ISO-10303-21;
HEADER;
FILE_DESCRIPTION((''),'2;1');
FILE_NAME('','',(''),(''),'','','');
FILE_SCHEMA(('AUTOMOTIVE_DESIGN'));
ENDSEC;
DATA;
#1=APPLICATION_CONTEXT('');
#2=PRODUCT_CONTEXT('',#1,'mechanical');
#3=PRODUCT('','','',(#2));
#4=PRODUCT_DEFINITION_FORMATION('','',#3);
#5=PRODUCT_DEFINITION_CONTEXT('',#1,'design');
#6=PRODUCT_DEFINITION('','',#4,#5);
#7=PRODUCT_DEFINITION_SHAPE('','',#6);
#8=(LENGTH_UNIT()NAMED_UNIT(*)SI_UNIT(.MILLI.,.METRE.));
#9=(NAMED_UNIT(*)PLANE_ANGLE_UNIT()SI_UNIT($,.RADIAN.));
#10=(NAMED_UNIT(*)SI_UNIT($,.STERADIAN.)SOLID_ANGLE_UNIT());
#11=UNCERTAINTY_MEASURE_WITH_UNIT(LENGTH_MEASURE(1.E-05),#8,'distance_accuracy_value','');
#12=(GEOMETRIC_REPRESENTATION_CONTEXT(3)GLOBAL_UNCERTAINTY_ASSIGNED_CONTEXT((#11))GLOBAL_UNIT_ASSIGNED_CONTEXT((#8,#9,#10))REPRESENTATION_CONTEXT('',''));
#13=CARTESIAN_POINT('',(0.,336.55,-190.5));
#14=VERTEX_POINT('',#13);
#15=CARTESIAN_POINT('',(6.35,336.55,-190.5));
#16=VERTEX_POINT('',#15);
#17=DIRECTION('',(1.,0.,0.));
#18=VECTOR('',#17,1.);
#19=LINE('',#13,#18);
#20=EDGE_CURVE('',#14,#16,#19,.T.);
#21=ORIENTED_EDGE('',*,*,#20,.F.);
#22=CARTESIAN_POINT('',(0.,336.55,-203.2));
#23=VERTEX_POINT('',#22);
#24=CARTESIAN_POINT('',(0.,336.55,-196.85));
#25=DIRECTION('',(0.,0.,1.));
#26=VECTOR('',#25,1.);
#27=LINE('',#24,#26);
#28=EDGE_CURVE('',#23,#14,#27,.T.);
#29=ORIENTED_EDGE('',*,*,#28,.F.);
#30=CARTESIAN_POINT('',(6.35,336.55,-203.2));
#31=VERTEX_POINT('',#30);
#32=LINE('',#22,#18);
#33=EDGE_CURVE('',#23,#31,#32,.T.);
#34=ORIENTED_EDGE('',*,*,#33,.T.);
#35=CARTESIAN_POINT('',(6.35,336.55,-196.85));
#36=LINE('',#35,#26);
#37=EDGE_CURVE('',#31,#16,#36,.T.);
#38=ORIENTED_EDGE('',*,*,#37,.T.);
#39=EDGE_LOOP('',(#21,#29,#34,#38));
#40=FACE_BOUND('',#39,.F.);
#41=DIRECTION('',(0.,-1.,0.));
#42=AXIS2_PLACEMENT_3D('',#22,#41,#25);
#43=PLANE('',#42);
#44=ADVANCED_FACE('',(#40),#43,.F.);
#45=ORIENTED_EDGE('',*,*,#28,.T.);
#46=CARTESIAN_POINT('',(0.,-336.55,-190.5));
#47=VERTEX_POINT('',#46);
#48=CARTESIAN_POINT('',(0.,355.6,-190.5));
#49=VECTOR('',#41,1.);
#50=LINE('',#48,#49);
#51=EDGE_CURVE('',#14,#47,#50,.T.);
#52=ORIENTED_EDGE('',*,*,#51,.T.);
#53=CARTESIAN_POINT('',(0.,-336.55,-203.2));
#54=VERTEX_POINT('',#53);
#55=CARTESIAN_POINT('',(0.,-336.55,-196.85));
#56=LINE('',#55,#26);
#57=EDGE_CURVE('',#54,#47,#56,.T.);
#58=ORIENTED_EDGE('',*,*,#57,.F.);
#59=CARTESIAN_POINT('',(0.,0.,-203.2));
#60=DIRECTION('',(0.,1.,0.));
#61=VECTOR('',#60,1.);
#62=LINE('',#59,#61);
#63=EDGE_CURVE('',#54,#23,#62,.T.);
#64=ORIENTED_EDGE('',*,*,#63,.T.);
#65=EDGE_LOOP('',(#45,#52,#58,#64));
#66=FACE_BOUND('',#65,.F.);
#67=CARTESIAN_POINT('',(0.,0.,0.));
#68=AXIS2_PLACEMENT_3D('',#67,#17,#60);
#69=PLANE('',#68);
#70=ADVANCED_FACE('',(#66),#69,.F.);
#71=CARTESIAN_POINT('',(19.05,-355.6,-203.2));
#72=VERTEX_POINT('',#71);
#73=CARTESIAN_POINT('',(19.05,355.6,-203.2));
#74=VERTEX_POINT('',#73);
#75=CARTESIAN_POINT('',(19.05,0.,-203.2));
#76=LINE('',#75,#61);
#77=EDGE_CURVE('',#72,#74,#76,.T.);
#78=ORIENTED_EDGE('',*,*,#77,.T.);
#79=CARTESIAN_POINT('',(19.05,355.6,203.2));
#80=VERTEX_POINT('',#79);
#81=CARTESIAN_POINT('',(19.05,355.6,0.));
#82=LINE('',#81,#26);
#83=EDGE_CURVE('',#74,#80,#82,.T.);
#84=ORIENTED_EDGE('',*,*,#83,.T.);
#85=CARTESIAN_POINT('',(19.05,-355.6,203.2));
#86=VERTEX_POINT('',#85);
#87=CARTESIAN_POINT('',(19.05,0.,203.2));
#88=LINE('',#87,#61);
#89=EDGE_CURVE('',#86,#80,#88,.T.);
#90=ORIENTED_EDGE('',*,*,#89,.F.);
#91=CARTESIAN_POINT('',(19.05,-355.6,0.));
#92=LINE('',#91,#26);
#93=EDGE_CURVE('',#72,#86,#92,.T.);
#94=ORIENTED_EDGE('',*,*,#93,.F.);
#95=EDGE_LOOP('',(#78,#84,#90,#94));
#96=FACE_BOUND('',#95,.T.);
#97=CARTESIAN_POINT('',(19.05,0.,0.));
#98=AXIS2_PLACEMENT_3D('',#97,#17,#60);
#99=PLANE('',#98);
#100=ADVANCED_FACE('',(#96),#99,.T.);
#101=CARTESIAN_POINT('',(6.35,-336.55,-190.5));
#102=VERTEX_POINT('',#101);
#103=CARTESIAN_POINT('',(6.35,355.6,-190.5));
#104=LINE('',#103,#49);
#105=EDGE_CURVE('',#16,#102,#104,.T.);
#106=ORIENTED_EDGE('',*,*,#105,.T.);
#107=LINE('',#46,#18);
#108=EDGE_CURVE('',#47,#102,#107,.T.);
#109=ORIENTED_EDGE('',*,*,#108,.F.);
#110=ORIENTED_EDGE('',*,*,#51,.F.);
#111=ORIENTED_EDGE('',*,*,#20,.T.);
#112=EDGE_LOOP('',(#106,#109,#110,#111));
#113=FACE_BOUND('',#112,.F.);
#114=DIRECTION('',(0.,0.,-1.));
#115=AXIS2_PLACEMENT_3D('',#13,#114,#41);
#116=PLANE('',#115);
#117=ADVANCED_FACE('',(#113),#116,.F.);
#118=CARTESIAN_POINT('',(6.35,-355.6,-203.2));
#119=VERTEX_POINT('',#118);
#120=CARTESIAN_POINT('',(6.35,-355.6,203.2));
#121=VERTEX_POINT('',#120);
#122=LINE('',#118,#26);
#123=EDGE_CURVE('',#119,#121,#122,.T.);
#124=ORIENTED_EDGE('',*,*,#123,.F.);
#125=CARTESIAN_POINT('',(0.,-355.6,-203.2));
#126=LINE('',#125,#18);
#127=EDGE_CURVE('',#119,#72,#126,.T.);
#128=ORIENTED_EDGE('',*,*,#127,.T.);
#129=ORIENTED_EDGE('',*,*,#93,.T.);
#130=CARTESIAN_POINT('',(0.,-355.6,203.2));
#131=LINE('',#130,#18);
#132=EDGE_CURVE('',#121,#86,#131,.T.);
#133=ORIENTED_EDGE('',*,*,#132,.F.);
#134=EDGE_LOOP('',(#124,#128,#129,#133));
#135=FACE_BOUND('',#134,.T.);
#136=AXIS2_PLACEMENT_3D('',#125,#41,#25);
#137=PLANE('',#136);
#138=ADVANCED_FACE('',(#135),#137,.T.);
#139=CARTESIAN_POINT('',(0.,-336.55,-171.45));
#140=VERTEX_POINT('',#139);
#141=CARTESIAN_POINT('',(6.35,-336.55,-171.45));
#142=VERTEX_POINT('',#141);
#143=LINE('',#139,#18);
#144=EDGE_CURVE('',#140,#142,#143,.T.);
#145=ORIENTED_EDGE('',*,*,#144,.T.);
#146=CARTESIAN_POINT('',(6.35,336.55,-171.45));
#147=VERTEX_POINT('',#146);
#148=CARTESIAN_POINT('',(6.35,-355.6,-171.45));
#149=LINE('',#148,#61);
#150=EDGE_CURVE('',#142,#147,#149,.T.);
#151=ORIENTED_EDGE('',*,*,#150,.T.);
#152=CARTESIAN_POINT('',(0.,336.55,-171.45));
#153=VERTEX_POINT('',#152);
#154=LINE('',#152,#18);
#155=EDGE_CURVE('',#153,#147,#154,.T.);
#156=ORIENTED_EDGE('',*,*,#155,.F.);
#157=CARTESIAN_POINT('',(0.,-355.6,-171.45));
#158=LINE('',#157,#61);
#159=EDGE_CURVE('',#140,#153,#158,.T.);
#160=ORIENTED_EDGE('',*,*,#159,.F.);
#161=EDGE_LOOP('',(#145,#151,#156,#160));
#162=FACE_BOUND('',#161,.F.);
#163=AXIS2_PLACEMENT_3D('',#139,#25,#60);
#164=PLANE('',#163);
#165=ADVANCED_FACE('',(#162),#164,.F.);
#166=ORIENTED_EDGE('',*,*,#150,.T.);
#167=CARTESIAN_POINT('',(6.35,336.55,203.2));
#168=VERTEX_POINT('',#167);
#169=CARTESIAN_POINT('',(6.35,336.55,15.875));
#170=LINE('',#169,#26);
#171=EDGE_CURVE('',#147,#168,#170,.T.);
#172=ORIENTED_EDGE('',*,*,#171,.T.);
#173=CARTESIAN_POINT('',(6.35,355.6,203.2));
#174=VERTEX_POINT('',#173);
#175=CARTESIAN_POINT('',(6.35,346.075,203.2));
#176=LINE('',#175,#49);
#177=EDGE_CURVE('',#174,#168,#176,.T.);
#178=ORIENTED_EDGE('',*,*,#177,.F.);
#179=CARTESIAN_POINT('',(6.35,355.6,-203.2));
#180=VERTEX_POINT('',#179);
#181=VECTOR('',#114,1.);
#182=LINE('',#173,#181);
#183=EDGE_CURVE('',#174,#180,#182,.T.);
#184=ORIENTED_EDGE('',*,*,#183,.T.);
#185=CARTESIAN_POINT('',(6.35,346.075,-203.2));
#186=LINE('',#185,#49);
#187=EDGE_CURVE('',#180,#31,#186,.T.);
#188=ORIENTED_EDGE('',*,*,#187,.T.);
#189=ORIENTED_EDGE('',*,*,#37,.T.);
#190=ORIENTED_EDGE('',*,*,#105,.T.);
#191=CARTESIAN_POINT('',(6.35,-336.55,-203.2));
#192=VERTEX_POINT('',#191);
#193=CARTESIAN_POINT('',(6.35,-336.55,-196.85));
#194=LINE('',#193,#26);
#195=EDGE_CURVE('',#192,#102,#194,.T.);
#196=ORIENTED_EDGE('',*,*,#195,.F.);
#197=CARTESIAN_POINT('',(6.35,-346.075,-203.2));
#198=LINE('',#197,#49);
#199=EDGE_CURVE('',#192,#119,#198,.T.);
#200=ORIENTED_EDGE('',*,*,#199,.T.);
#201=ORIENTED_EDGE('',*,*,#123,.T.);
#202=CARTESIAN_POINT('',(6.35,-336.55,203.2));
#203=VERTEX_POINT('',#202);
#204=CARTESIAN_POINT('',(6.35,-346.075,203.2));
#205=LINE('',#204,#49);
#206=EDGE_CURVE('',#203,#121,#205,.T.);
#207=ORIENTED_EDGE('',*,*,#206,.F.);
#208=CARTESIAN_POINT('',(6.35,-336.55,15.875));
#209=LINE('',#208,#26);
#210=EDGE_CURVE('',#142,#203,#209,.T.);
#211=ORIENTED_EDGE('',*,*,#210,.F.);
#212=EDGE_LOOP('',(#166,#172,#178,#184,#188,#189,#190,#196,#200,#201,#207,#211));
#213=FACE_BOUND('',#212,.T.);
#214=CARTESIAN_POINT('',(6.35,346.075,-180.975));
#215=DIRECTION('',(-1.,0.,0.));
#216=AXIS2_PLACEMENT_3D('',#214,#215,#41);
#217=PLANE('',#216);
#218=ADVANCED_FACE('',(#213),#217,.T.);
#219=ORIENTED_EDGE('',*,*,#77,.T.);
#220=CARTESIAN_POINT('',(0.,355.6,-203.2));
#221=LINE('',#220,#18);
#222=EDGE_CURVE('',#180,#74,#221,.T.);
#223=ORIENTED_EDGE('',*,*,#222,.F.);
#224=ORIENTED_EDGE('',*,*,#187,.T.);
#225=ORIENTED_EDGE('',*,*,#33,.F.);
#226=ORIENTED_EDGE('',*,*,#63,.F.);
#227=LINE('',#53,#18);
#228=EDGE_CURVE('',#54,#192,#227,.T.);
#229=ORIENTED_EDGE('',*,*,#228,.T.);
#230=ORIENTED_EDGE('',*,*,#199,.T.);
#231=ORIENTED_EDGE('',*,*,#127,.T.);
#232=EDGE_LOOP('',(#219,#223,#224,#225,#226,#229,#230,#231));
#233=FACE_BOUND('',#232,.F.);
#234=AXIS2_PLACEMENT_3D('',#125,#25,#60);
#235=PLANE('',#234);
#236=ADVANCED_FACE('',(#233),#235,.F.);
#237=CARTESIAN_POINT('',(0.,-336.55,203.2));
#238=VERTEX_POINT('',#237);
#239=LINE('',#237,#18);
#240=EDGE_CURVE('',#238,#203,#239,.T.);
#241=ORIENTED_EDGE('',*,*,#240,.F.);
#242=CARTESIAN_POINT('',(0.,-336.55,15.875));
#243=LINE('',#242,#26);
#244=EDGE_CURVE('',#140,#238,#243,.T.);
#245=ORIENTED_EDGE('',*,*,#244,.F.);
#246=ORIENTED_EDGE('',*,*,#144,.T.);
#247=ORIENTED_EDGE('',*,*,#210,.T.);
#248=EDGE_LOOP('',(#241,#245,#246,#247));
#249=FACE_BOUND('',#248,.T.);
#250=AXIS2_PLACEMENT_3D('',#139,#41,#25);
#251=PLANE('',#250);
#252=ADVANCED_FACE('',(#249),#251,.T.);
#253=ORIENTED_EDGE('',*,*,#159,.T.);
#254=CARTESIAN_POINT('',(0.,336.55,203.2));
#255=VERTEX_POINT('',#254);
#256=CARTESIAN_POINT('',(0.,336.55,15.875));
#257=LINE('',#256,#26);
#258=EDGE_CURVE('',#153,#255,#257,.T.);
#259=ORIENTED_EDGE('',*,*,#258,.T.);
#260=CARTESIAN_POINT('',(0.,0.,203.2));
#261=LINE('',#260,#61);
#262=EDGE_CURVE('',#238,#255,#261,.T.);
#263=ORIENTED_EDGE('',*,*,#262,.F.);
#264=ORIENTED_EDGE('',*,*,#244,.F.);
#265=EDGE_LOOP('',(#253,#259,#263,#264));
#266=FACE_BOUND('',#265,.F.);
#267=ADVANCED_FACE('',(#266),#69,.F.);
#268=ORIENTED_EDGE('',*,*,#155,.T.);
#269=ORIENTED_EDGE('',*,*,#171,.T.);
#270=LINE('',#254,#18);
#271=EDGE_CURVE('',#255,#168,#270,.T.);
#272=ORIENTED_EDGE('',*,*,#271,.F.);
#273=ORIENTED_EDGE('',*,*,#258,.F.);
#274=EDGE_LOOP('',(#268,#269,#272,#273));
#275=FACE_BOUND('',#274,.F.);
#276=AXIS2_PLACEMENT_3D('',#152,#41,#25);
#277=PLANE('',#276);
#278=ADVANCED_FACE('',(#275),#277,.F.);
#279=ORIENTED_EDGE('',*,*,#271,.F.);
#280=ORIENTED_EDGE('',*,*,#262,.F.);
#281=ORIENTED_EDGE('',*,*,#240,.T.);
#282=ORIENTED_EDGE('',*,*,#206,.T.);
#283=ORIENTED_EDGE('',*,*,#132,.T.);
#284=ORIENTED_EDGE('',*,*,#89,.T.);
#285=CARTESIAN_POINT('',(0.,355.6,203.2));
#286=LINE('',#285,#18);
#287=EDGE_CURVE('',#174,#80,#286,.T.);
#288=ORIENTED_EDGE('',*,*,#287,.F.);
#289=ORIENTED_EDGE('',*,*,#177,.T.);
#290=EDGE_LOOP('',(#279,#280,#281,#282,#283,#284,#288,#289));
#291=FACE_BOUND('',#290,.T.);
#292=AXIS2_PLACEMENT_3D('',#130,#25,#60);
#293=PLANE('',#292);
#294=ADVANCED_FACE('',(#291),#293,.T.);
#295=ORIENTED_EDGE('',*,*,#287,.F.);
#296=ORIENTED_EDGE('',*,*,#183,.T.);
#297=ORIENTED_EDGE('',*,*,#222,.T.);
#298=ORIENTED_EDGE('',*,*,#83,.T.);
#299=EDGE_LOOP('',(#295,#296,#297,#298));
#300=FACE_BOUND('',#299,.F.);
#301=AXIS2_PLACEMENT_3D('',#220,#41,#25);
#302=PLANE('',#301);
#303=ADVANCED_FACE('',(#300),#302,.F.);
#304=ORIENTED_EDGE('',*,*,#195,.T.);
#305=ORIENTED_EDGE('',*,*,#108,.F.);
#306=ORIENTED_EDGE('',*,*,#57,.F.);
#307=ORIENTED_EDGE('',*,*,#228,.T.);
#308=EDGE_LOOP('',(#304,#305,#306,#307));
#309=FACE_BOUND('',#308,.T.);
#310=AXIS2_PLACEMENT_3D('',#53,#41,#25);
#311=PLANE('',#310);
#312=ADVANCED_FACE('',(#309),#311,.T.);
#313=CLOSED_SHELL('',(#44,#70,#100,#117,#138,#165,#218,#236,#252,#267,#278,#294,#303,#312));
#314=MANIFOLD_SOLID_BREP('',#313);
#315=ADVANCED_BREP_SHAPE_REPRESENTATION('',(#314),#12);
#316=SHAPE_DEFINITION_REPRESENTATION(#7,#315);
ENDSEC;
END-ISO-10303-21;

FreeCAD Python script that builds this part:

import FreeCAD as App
import Part
import Sketcher

V = App.Vector
Q = App.Units.Quantity

doc = App.newDocument("Part")
body = doc.addObject("PartDesign::Body", "Body")

# Sketch on YZ plane
sketch1 = body.newObject("Sketcher::SketchObject", "Sketch")
sketch1.AttachmentSupport = (doc.getObject("YZ_Plane"), [""])
sketch1.MapMode = "FlatFace"
sketch1.addGeometry(Part.LineSegment(V(-356, 203, 0), V(-356, -203, 0)), False)
sketch1.addGeometry(Part.LineSegment(V(-356, -203, 0), V(356, -203, 0)), False)
sketch1.addGeometry(Part.LineSegment(V(356, -203, 0), V(356, 203, 0)), False)
sketch1.addGeometry(Part.LineSegment(V(356, 203, 0), V(-356, 203, 0)), False)
sketch1.addConstraint(Sketcher.Constraint("Coincident", 0, 2, 1, 1))
sketch1.addConstraint(Sketcher.Constraint("Coincident", 1, 2, 2, 1))
sketch1.addConstraint(Sketcher.Constraint("Coincident", 2, 2, 3, 1))
sketch1.addConstraint(Sketcher.Constraint("Coincident", 3, 2, 0, 1))
sketch1.addConstraint(Sketcher.Constraint("Vertical", 0))
sketch1.addConstraint(Sketcher.Constraint("Horizontal", 1))
sketch1.addConstraint(Sketcher.Constraint("Vertical", 2))
sketch1.addConstraint(Sketcher.Constraint("Horizontal", 3))
sketch1.addConstraint(Sketcher.Constraint("Symmetric", 0, 2, 2, 2, -1, 1))
sketch1.addConstraint(Sketcher.Constraint("DistanceX", 1, 1, 1, 2, Q("28 in")))
sketch1.addConstraint(Sketcher.Constraint("DistanceY", 0, 2, 0, 1, Q("16 in")))
pad1 = body.newObject("PartDesign::Pad", "Pad")
pad1.Profile = sketch1
pad1.Length = Q("0.75 in")

# Sketch on YZ plane
sketch2 = body.newObject("Sketcher::SketchObject", "Sketch001")
sketch2.AttachmentSupport = (doc.getObject("YZ_Plane"), [""])
sketch2.MapMode = "FlatFace"
sketch2.addGeometry(Part.LineSegment(V(337, -190, 0), V(-337, -190, 0)), False)
sketch2.addGeometry(Part.LineSegment(V(-337, -190, 0), V(-337, -203, 0)), False)
sketch2.addGeometry(Part.LineSegment(V(-337, -203, 0), V(-356, -203, 0)), False)
sketch2.addGeometry(Part.LineSegment(V(-356, -203, 0), V(-356, 203, 0)), False)
sketch2.addGeometry(Part.LineSegment(V(-356, 203, 0), V(-337, 203, 0)), False)
sketch2.addGeometry(Part.LineSegment(V(-337, 203, 0), V(-337, -171, 0)), False)
sketch2.addGeometry(Part.LineSegment(V(-337, -171, 0), V(337, -171, 0)), False)
sketch2.addGeometry(Part.LineSegment(V(337, -171, 0), V(337, 203, 0)), False)
sketch2.addGeometry(Part.LineSegment(V(337, 203, 0), V(356, 203, 0)), False)
sketch2.addGeometry(Part.LineSegment(V(356, 203, 0), V(356, -203, 0)), False)
sketch2.addGeometry(Part.LineSegment(V(356, -203, 0), V(337, -203, 0)), False)
sketch2.addGeometry(Part.LineSegment(V(337, -203, 0), V(337, -190, 0)), False)
sketch2.addConstraint(Sketcher.Constraint("Coincident", 0, 2, 1, 1))
sketch2.addConstraint(Sketcher.Constraint("Coincident", 1, 2, 2, 1))
sketch2.addConstraint(Sketcher.Constraint("Coincident", 2, 2, 3, 1))
sketch2.addConstraint(Sketcher.Constraint("Coincident", 3, 2, 4, 1))
sketch2.addConstraint(Sketcher.Constraint("Coincident", 4, 2, 5, 1))
sketch2.addConstraint(Sketcher.Constraint("Coincident", 5, 2, 6, 1))
sketch2.addConstraint(Sketcher.Constraint("Coincident", 6, 2, 7, 1))
sketch2.addConstraint(Sketcher.Constraint("Coincident", 7, 2, 8, 1))
sketch2.addConstraint(Sketcher.Constraint("Coincident", 8, 2, 9, 1))
sketch2.addConstraint(Sketcher.Constraint("Coincident", 9, 2, 10, 1))
sketch2.addConstraint(Sketcher.Constraint("Coincident", 10, 2, 11, 1))
sketch2.addConstraint(Sketcher.Constraint("Coincident", 11, 2, 0, 1))
sketch2.addConstraint(Sketcher.Constraint("Horizontal", 0))
sketch2.addConstraint(Sketcher.Constraint("Vertical", 1))
sketch2.addConstraint(Sketcher.Constraint("Horizontal", 2))
sketch2.addConstraint(Sketcher.Constraint("Vertical", 3))
sketch2.addConstraint(Sketcher.Constraint("Horizontal", 4))
sketch2.addConstraint(Sketcher.Constraint("Vertical", 5))
sketch2.addConstraint(Sketcher.Constraint("Horizontal", 6))
sketch2.addConstraint(Sketcher.Constraint("Vertical", 7))
sketch2.addConstraint(Sketcher.Constraint("Horizontal", 8))
sketch2.addConstraint(Sketcher.Constraint("Vertical", 9))
sketch2.addConstraint(Sketcher.Constraint("Horizontal", 10))
sketch2.addConstraint(Sketcher.Constraint("Vertical", 11))
sketch2.addConstraint(Sketcher.Constraint("Symmetric", 1, 2, 7, 2, -1, 1))
sketch2.addConstraint(Sketcher.Constraint("Symmetric", 3, 2, 9, 2, -1, 1))
sketch2.addConstraint(Sketcher.Constraint("Symmetric", 4, 2, 7, 2, -2))
sketch2.addConstraint(Sketcher.Constraint("Vertical", 7, 2, 10, 2))
sketch2.addConstraint(Sketcher.Constraint("DistanceY", 3, 1, 3, 2, Q("16 in")))
sketch2.addConstraint(Sketcher.Constraint("DistanceX", 0, 2, 0, 1, Q("26.5 in")))
sketch2.addConstraint(Sketcher.Constraint("DistanceY", 1, 2, 1, 1, Q("0.5 in")))
sketch2.addConstraint(Sketcher.Constraint("DistanceX", 2, 2, -1, 1, Q("14 in")))
sketch2.addConstraint(Sketcher.Constraint("DistanceY", 5, 2, 5, 1, Q("14.75 in")))
pocket1 = body.newObject("PartDesign::Pocket", "Pocket")
pocket1.Profile = sketch2
pocket1.Length = Q("0.25 in")
pocket1.Reversed = True

doc.recompute()
